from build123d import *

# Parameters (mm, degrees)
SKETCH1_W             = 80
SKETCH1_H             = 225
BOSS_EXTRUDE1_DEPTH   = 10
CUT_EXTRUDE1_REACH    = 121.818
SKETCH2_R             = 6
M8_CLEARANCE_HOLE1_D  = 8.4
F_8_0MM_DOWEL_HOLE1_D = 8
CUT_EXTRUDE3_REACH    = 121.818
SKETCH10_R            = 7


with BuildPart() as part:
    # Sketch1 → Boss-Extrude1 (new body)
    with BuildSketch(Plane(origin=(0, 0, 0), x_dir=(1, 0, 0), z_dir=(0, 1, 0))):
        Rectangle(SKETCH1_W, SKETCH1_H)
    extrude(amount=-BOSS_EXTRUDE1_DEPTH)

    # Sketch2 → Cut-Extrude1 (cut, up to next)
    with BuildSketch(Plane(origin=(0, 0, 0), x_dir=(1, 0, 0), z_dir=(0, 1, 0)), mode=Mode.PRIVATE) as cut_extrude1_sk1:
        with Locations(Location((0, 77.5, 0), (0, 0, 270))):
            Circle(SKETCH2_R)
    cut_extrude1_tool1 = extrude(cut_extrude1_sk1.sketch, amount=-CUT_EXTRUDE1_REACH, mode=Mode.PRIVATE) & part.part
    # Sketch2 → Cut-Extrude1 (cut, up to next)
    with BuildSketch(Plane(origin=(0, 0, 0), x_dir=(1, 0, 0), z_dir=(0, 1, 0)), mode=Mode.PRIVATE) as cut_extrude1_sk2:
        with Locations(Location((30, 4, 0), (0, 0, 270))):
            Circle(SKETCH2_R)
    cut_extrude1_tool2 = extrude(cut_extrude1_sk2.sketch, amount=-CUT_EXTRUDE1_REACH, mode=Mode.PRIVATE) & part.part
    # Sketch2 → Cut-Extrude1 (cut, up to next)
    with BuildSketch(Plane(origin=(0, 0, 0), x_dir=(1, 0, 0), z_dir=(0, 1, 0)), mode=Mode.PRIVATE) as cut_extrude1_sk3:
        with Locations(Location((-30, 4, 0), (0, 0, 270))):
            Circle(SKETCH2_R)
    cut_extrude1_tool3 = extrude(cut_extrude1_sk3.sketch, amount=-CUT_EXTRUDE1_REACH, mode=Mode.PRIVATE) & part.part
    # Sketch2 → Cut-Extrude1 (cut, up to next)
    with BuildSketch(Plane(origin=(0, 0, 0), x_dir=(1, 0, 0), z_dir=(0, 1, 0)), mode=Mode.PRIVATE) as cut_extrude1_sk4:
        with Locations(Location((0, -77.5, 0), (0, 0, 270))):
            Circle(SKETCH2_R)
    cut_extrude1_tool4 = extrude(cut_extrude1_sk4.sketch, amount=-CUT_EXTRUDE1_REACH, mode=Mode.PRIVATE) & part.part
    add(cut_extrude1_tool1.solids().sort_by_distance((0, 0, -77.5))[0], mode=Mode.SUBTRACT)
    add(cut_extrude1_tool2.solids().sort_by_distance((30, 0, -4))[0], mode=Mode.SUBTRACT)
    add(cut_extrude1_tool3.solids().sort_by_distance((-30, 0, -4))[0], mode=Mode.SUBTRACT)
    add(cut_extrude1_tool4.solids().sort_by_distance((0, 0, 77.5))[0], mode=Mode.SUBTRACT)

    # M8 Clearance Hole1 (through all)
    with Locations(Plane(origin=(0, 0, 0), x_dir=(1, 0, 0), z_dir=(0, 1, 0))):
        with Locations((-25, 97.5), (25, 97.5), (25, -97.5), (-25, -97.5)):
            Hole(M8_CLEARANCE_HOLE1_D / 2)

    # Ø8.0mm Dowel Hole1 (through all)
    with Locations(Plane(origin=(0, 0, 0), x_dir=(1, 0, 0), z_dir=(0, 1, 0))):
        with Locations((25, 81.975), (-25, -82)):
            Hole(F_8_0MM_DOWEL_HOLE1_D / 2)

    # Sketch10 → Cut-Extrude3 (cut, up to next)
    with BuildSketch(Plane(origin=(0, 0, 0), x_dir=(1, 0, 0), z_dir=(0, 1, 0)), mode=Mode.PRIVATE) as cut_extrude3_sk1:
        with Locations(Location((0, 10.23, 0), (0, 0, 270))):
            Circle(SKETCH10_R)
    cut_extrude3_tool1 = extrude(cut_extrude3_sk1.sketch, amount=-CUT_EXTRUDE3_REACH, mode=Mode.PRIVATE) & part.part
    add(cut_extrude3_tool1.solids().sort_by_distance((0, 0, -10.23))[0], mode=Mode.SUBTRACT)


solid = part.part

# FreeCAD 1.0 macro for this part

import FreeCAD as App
import Part
import Sketcher
from FreeCAD import Vector


def add_polygon(sketch, points):
    """Adds a closed chain of lines whose ends are joined by coincident constraints."""
    first, n = sketch.GeometryCount, len(points)
    for a, b in zip(points, points[1:] + points[:1]):
        sketch.addGeometry(Part.LineSegment(App.Vector(*a, 0), App.Vector(*b, 0)), False)
    for i in range(n):
        sketch.addConstraint(Sketcher.Constraint("Coincident", first + i, 2, first + (i + 1) % n, 1))

doc = App.newDocument("Part")
params = doc.addObject("Spreadsheet::Sheet", "Params")
for row, (alias, value) in enumerate([
    ("sketch1_width", "80 mm"),
    ("sketch1_height", "225 mm"),
    ("pad1_length", "10 mm"),
    ("sketch2_diameter", "12 mm"),
    ("sketch3_diameter", "12 mm"),
    ("sketch4_diameter", "12 mm"),
    ("sketch5_diameter", "12 mm"),
    ("sketch6_diameter", "8.4 mm"),
    ("hole_diameter", "8.4 mm"),
    ("sketch7_diameter", "8 mm"),
    ("hole2_diameter", "8 mm"),
    ("sketch8_diameter", "14 mm"),
], start=1):
    params.set(f"A{row}", alias)
    params.set(f"B{row}", "=" + value)
    params.setAlias(f"B{row}", alias)

body = doc.addObject("PartDesign::Body", "Body")

sketch1 = body.newObject("Sketcher::SketchObject", "Sketch")
sketch1.AttachmentSupport = (doc.getObject("XZ_Plane"), [""])
sketch1.MapMode = "FlatFace"
add_polygon(sketch1, [(-40, -112.5), (-40, 112.5), (40, 112.5), (40, -112.5)])
sketch1.addConstraint([
    Sketcher.Constraint("Vertical", 0),
    Sketcher.Constraint("Horizontal", 1),
    Sketcher.Constraint("Vertical", 2),
    Sketcher.Constraint("Horizontal", 3),
    Sketcher.Constraint("Symmetric", 0, 2, 2, 2, -1, 1),
    Sketcher.Constraint("DistanceX", 1, 1, 1, 2, 80.0),
    Sketcher.Constraint("DistanceY", 0, 1, 0, 2, 225.0),
])
sketch1.setExpression("Constraints[9]", "Params.sketch1_width")
sketch1.setExpression("Constraints[10]", "Params.sketch1_height")
pad1 = body.newObject("PartDesign::Pad", "Pad")
pad1.Profile = sketch1
pad1.setExpression("Length", "Params.pad1_length")

sketch2 = body.newObject("Sketcher::SketchObject", "Sketch001")
sketch2.AttachmentSupport = (doc.getObject("XZ_Plane"), [""])
sketch2.MapMode = "FlatFace"
sketch2.addGeometry(Part.Circle(Vector(0, -77.5, 0), Vector(0, 0, 1), 6), False)
sketch2.addConstraint([
    Sketcher.Constraint("PointOnObject", 0, 3, -2),
    Sketcher.Constraint("Diameter", 0, 12.0),
    Sketcher.Constraint("DistanceY", 0, 3, -1, 1, 77.5),
])
sketch2.setExpression("Constraints[1]", "Params.sketch2_diameter")
pocket1 = body.newObject("PartDesign::Pocket", "Pocket")
pocket1.Profile = sketch2
pocket1.Type = "UpToFirst"
pocket1.Reversed = True

sketch3 = body.newObject("Sketcher::SketchObject", "Sketch002")
sketch3.AttachmentSupport = (doc.getObject("XZ_Plane"), [""])
sketch3.MapMode = "FlatFace"
sketch3.addGeometry(Part.Circle(Vector(30, -4, 0), Vector(0, 0, 1), 6), False)
sketch3.addConstraint([
    Sketcher.Constraint("Diameter", 0, 12.0),
    Sketcher.Constraint("DistanceX", -1, 1, 0, 3, 30.0),
    Sketcher.Constraint("DistanceY", 0, 3, -1, 1, 4.0),
])
sketch3.setExpression("Constraints[0]", "Params.sketch3_diameter")
pocket2 = body.newObject("PartDesign::Pocket", "Pocket001")
pocket2.Profile = sketch3
pocket2.Type = "UpToFirst"
pocket2.Reversed = True

sketch4 = body.newObject("Sketcher::SketchObject", "Sketch003")
sketch4.AttachmentSupport = (doc.getObject("XZ_Plane"), [""])
sketch4.MapMode = "FlatFace"
sketch4.addGeometry(Part.Circle(Vector(-30, -4, 0), Vector(0, 0, 1), 6), False)
sketch4.addConstraint([
    Sketcher.Constraint("Diameter", 0, 12.0),
    Sketcher.Constraint("DistanceX", 0, 3, -1, 1, 30.0),
    Sketcher.Constraint("DistanceY", 0, 3, -1, 1, 4.0),
])
sketch4.setExpression("Constraints[0]", "Params.sketch4_diameter")
pocket3 = body.newObject("PartDesign::Pocket", "Pocket002")
pocket3.Profile = sketch4
pocket3.Type = "UpToFirst"
pocket3.Reversed = True

sketch5 = body.newObject("Sketcher::SketchObject", "Sketch004")
sketch5.AttachmentSupport = (doc.getObject("XZ_Plane"), [""])
sketch5.MapMode = "FlatFace"
sketch5.addGeometry(Part.Circle(Vector(0, 77.5, 0), Vector(0, 0, 1), 6), False)
sketch5.addConstraint([
    Sketcher.Constraint("PointOnObject", 0, 3, -2),
    Sketcher.Constraint("Diameter", 0, 12.0),
    Sketcher.Constraint("DistanceY", -1, 1, 0, 3, 77.5),
])
sketch5.setExpression("Constraints[1]", "Params.sketch5_diameter")
pocket4 = body.newObject("PartDesign::Pocket", "Pocket003")
pocket4.Profile = sketch5
pocket4.Type = "UpToFirst"
pocket4.Reversed = True

sketch6 = body.newObject("Sketcher::SketchObject", "Sketch005")
sketch6.AttachmentSupport = (doc.getObject("XZ_Plane"), [""])
sketch6.MapMode = "FlatFace"
sketch6.addGeometry([
    Part.Circle(Vector(-25, -97.5, 0), Vector(0, 0, 1), 4.2),
    Part.Circle(Vector(25, -97.5, 0), Vector(0, 0, 1), 4.2),
    Part.Circle(Vector(25, 97.5, 0), Vector(0, 0, 1), 4.2),
    Part.Circle(Vector(-25, 97.5, 0), Vector(0, 0, 1), 4.2),
], False)
sketch6.addConstraint([
    Sketcher.Constraint("Equal", 0, 1),
    Sketcher.Constraint("Equal", 1, 2),
    Sketcher.Constraint("Equal", 2, 3),
    Sketcher.Constraint("Symmetric", 0, 3, 2, 3, -1, 1),
    Sketcher.Constraint("Symmetric", 1, 3, 3, 3, -1, 1),
    Sketcher.Constraint("Symmetric", 0, 3, 1, 3, -2),
    Sketcher.Constraint("Diameter", 0, 8.4),
    Sketcher.Constraint("DistanceX", 0, 3, -1, 1, 25.0),
    Sketcher.Constraint("DistanceY", 1, 3, 2, 3, 195.0),
])
sketch6.setExpression("Constraints[6]", "Params.sketch6_diameter")
doc.recompute()
hole = body.newObject("PartDesign::Hole", "Hole")
hole.Profile = sketch6
hole.ThreadType = "None"
hole.setExpression("Diameter", "Params.hole_diameter")
hole.DepthType = "ThroughAll"
hole.Reversed = True

sketch7 = body.newObject("Sketcher::SketchObject", "Sketch006")
sketch7.AttachmentSupport = (doc.getObject("XZ_Plane"), [""])
sketch7.MapMode = "FlatFace"
sketch7.addGeometry([
    Part.Circle(Vector(25, -81.975, 0), Vector(0, 0, 1), 4),
    Part.Circle(Vector(-25, 82, 0), Vector(0, 0, 1), 4),
], False)
sketch7.addConstraint([
    Sketcher.Constraint("Equal", 0, 1),
    Sketcher.Constraint("Diameter", 0, 8.0),
    Sketcher.Constraint("DistanceX", -1, 1, 0, 3, 25.0),
    Sketcher.Constraint("DistanceX", 1, 3, -1, 1, 25.0),
    Sketcher.Constraint("DistanceY", -1, 1, 1, 3, 82.0),
    Sketcher.Constraint("DistanceY", 0, 3, -1, 1, 81.975),
])
sketch7.setExpression("Constraints[1]", "Params.sketch7_diameter")
doc.recompute()
hole2 = body.newObject("PartDesign::Hole", "Hole001")
hole2.Profile = sketch7
hole2.ThreadType = "None"
hole2.setExpression("Diameter", "Params.hole2_diameter")
hole2.DepthType = "ThroughAll"
hole2.Reversed = True

sketch8 = body.newObject("Sketcher::SketchObject", "Sketch007")
sketch8.AttachmentSupport = (doc.getObject("XZ_Plane"), [""])
sketch8.MapMode = "FlatFace"
sketch8.addGeometry(Part.Circle(Vector(0, -10.23, 0), Vector(0, 0, 1), 7), False)
sketch8.addConstraint([
    Sketcher.Constraint("PointOnObject", 0, 3, -2),
    Sketcher.Constraint("Diameter", 0, 14.0),
    Sketcher.Constraint("DistanceY", 0, 3, -1, 1, 10.23),
])
sketch8.setExpression("Constraints[1]", "Params.sketch8_diameter")
pocket5 = body.newObject("PartDesign::Pocket", "Pocket004")
pocket5.Profile = sketch8
pocket5.Type = "UpToFirst"
pocket5.Reversed = True

doc.recompute()
